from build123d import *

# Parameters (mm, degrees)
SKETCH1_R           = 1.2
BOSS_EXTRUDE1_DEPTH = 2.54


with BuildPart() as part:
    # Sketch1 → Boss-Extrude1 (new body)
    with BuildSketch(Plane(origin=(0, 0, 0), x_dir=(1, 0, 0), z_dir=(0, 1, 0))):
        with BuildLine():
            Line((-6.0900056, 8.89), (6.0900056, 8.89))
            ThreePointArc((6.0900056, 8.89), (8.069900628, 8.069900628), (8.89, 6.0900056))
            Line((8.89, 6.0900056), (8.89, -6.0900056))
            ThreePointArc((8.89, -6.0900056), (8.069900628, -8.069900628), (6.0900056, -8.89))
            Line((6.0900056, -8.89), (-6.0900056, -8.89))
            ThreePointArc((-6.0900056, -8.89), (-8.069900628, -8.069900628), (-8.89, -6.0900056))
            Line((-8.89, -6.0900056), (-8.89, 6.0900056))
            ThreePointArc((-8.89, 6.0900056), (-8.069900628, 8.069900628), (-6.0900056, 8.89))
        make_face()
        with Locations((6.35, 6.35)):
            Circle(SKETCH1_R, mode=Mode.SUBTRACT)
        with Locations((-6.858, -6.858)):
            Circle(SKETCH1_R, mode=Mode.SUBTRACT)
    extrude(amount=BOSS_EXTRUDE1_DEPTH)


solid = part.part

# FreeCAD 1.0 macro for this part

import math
import FreeCAD as App
import Part
import Sketcher
Q = App.Units.Quantity

doc = App.newDocument("Part")
body = doc.addObject("PartDesign::Body", "Body")

# Sketch on XZ plane
sketch1 = body.newObject("Sketcher::SketchObject", "Sketch")
sketch1.AttachmentSupport = (doc.getObject("XZ_Plane"), [""])
sketch1.MapMode = "FlatFace"
sketch1.addGeometry([
    Part.LineSegment(App.Vector(6.1, -8.9, 0), App.Vector(-6.1, -8.9, 0)),  # 0
    Part.ArcOfCircle(Part.Circle(App.Vector(-6.1, -6.1, 0), App.Vector(0, 0, 1), 2.8), math.radians(180), math.radians(270)),  # 1
    Part.LineSegment(App.Vector(-8.9, -6.1, 0), App.Vector(-8.9, 6.1, 0)),  # 2
    Part.ArcOfCircle(Part.Circle(App.Vector(-6.1, 6.1, 0), App.Vector(0, 0, 1), 2.8), math.radians(90), math.radians(180)),  # 3
    Part.LineSegment(App.Vector(-6.1, 8.9, 0), App.Vector(6.1, 8.9, 0)),  # 4
    Part.ArcOfCircle(Part.Circle(App.Vector(6.1, 6.1, 0), App.Vector(0, 0, 1), 2.8), math.radians(0), math.radians(90)),  # 5
    Part.LineSegment(App.Vector(8.9, 6.1, 0), App.Vector(8.9, -6.1, 0)),  # 6
    Part.ArcOfCircle(Part.Circle(App.Vector(6.1, -6.1, 0), App.Vector(0, 0, 1), 2.8), math.radians(-90), math.radians(0)),  # 7
    Part.Circle(App.Vector(-6.9, 6.9, 0), App.Vector(0, 0, 1), 1.2),  # 8
    Part.Circle(App.Vector(6.3, -6.3, 0), App.Vector(0, 0, 1), 1.2),  # 9
], False)
sketch1.addConstraint([
    Sketcher.Constraint("Tangent", 0, 2, 1, 2),
    Sketcher.Constraint("Tangent", 1, 1, 2, 1),
    Sketcher.Constraint("Tangent", 2, 2, 3, 2),
    Sketcher.Constraint("Tangent", 3, 1, 4, 1),
    Sketcher.Constraint("Tangent", 4, 2, 5, 2),
    Sketcher.Constraint("Tangent", 5, 1, 6, 1),
    Sketcher.Constraint("Tangent", 6, 2, 7, 2),
    Sketcher.Constraint("Tangent", 7, 1, 0, 1),
    Sketcher.Constraint("Horizontal", 0),
    Sketcher.Constraint("Vertical", 2),
    Sketcher.Constraint("Horizontal", 4),
    Sketcher.Constraint("Vertical", 6),
    Sketcher.Constraint("Equal", 1, 3),
    Sketcher.Constraint("Equal", 3, 5),
    Sketcher.Constraint("Equal", 5, 7),
    Sketcher.Constraint("Equal", 8, 9),
    Sketcher.Constraint("Symmetric", 1, 3, 5, 3, -1, 1),
    Sketcher.Constraint("Equal", 4, 2),
    Sketcher.Constraint("Diameter", 8, Q("2.4 mm")),
    Sketcher.Constraint("DistanceX", -1, 1, 9, 3, Q("6.35 mm")),
    Sketcher.Constraint("DistanceY", 9, 3, -1, 1, Q("6.35 mm")),
    Sketcher.Constraint("DistanceY", 0, 2, -1, 1, Q("8.89 mm")),
    Sketcher.Constraint("DistanceX", 8, 3, -1, 1, Q("6.858 mm")),
    Sketcher.Constraint("DistanceY", -1, 1, 8, 3, Q("6.858 mm")),
    Sketcher.Constraint("Radius", 1, Q("2.799994 mm")),
])
pad1 = body.newObject("PartDesign::Pad", "Pad")
pad1.Profile = sketch1
pad1.Length = 2.54
pad1.Reversed = True

doc.recompute()
